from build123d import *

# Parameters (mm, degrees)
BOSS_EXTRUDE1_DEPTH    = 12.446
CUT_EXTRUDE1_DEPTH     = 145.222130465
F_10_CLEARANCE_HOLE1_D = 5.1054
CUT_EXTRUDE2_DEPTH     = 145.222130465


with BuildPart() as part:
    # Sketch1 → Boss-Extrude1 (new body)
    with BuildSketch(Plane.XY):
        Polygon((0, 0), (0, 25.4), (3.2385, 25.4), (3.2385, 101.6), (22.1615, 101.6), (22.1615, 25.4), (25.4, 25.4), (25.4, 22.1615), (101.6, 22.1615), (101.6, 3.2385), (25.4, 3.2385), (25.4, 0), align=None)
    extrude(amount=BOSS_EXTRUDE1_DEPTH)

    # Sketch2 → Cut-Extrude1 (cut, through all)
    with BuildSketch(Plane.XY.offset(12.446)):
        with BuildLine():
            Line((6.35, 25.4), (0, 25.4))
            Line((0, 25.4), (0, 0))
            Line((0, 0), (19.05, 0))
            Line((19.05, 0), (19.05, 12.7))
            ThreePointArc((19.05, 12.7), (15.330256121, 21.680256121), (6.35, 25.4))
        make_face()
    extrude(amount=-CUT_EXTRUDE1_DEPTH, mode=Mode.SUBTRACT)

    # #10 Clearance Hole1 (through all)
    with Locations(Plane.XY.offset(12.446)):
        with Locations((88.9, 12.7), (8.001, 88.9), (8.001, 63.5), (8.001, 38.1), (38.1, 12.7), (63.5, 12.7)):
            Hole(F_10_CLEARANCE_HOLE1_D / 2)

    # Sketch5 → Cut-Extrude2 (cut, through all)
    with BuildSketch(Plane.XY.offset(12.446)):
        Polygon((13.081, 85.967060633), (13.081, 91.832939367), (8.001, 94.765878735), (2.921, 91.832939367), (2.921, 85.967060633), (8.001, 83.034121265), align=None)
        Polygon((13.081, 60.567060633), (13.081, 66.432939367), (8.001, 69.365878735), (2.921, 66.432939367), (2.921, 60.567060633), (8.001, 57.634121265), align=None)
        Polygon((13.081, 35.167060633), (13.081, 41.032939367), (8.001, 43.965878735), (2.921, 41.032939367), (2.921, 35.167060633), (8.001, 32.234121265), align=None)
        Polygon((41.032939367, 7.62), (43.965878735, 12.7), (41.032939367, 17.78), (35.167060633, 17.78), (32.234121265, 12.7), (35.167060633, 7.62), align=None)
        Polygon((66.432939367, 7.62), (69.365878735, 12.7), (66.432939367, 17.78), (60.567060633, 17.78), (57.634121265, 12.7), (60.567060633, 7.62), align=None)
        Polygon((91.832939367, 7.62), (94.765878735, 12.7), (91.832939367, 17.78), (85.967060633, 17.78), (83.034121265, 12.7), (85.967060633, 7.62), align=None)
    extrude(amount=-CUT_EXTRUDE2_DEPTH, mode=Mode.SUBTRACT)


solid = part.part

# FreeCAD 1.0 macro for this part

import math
import FreeCAD as App
import Part
import Sketcher
from FreeCAD import Vector
Q = App.Units.Quantity

doc = App.newDocument("Part")
body = doc.addObject("PartDesign::Body", "Body")

# Sketch on XY plane
sketch1 = body.newObject("Sketcher::SketchObject", "Sketch")
sketch1.AttachmentSupport = (doc.getObject("XY_Plane"), [""])
sketch1.MapMode = "FlatFace"
sketch1.addGeometry([
    Part.LineSegment(Vector(0, 25.4, 0), Vector(0, 0, 0)),  # 0
    Part.LineSegment(Vector(0, 0, 0), Vector(25.4, 0, 0)),  # 1
    Part.LineSegment(Vector(25.4, 0, 0), Vector(25.4, 3.2, 0)),  # 2
    Part.LineSegment(Vector(25.4, 3.2, 0), Vector(101.6, 3.2, 0)),  # 3
    Part.LineSegment(Vector(101.6, 3.2, 0), Vector(101.6, 22.2, 0)),  # 4
    Part.LineSegment(Vector(101.6, 22.2, 0), Vector(25.4, 22.2, 0)),  # 5
    Part.LineSegment(Vector(25.4, 22.2, 0), Vector(25.4, 25.4, 0)),  # 6
    Part.LineSegment(Vector(25.4, 25.4, 0), Vector(22.2, 25.4, 0)),  # 7
    Part.LineSegment(Vector(22.2, 25.4, 0), Vector(22.2, 101.6, 0)),  # 8
    Part.LineSegment(Vector(22.2, 101.6, 0), Vector(3.2, 101.6, 0)),  # 9
    Part.LineSegment(Vector(3.2, 101.6, 0), Vector(3.2, 25.4, 0)),  # 10
    Part.LineSegment(Vector(3.2, 25.4, 0), Vector(0, 25.4, 0)),  # 11
], False)
sketch1.addConstraint([
    Sketcher.Constraint("Coincident", 0, 2, 1, 1),
    Sketcher.Constraint("Coincident", 1, 2, 2, 1),
    Sketcher.Constraint("Coincident", 2, 2, 3, 1),
    Sketcher.Constraint("Coincident", 3, 2, 4, 1),
    Sketcher.Constraint("Coincident", 4, 2, 5, 1),
    Sketcher.Constraint("Coincident", 5, 2, 6, 1),
    Sketcher.Constraint("Coincident", 6, 2, 7, 1),
    Sketcher.Constraint("Coincident", 7, 2, 8, 1),
    Sketcher.Constraint("Coincident", 8, 2, 9, 1),
    Sketcher.Constraint("Coincident", 9, 2, 10, 1),
    Sketcher.Constraint("Coincident", 10, 2, 11, 1),
    Sketcher.Constraint("Coincident", 11, 2, 0, 1),
    Sketcher.Constraint("Vertical", 0),
    Sketcher.Constraint("Horizontal", 1),
    Sketcher.Constraint("Vertical", 2),
    Sketcher.Constraint("Horizontal", 3),
    Sketcher.Constraint("Vertical", 4),
    Sketcher.Constraint("Horizontal", 5),
    Sketcher.Constraint("Vertical", 6),
    Sketcher.Constraint("Horizontal", 7),
    Sketcher.Constraint("Vertical", 8),
    Sketcher.Constraint("Horizontal", 9),
    Sketcher.Constraint("Vertical", 10),
    Sketcher.Constraint("Horizontal", 11),
    Sketcher.Constraint("Coincident", 0, 2, -1, 1),
    Sketcher.Constraint("Horizontal", 7, 2, 10, 2),
    Sketcher.Constraint("Vertical", 2, 2, 5, 2),
    Sketcher.Constraint("Equal", 7, 11),
    Sketcher.Constraint("Equal", 1, 0),
    Sketcher.Constraint("Equal", 11, 2),
    Sketcher.Constraint("Equal", 9, 4),
    Sketcher.Constraint("Equal", 5, 8),
    Sketcher.Constraint("DistanceX", 1, 1, 1, 2, Q("1 in")),
    Sketcher.Constraint("DistanceX", 3, 1, 3, 2, Q("3 in")),
    Sketcher.Constraint("DistanceX", 9, 2, 9, 1, Q("0.745 in")),
])
pad1 = body.newObject("PartDesign::Pad", "Pad")
pad1.Profile = sketch1
pad1.Length = Q("0.49 in")

# Sketch on XY plane
sketch2 = body.newObject("Sketcher::SketchObject", "Sketch001")
sketch2.AttachmentSupport = (doc.getObject("XY_Plane"), [""])
sketch2.MapMode = "FlatFace"
sketch2.AttachmentOffset = App.Placement(Vector(0, 0, 0.49 * 25.4), App.Rotation())
sketch2.addGeometry([
    Part.LineSegment(Vector(6, 25, 0), Vector(0, 25, 0)),  # 0
    Part.LineSegment(Vector(0, 25, 0), Vector(0, 0, 0)),  # 1
    Part.LineSegment(Vector(0, 0, 0), Vector(19, 0, 0)),  # 2
    Part.LineSegment(Vector(19, 0, 0), Vector(19, 13, 0)),  # 3
    Part.ArcOfCircle(Part.Circle(Vector(6, 13, 0), Vector(0, 0, 1), 13), math.radians(0), math.radians(90)),  # 4
], False)
sketch2.addConstraint([
    Sketcher.Constraint("Coincident", 0, 2, 1, 1),
    Sketcher.Constraint("Coincident", 1, 2, 2, 1),
    Sketcher.Constraint("Coincident", 2, 2, 3, 1),
    Sketcher.Constraint("Tangent", 3, 2, 4, 1),
    Sketcher.Constraint("Tangent", 4, 2, 0, 1),
    Sketcher.Constraint("Horizontal", 0),
    Sketcher.Constraint("Vertical", 1),
    Sketcher.Constraint("Horizontal", 2),
    Sketcher.Constraint("Vertical", 3),
    Sketcher.Constraint("Coincident", 1, 2, -1, 1),
    Sketcher.Constraint("Radius", 4, Q("0.5 in")),
    Sketcher.Constraint("DistanceY", 1, 2, 1, 1, Q("1 in")),
    Sketcher.Constraint("DistanceX", 0, 2, 0, 1, Q("0.25 in")),
])
pocket1 = body.newObject("PartDesign::Pocket", "Pocket")
pocket1.Profile = sketch2
pocket1.Type = "ThroughAll"

# Sketch on XY plane
sketch3 = body.newObject("Sketcher::SketchObject", "Sketch002")
sketch3.AttachmentSupport = (doc.getObject("XY_Plane"), [""])
sketch3.MapMode = "FlatFace"
sketch3.AttachmentOffset = App.Placement(Vector(0, 0, 0.49 * 25.4), App.Rotation())
sketch3.addGeometry([
    Part.Circle(Vector(88.9, 12.7, 0), Vector(0, 0, 1), 2.6),  # 0
    Part.Circle(Vector(8, 88.9, 0), Vector(0, 0, 1), 2.6),  # 1
    Part.Circle(Vector(8, 63.5, 0), Vector(0, 0, 1), 2.6),  # 2
    Part.Circle(Vector(8, 38.1, 0), Vector(0, 0, 1), 2.6),  # 3
    Part.Circle(Vector(38.1, 12.7, 0), Vector(0, 0, 1), 2.6),  # 4
    Part.Circle(Vector(63.5, 12.7, 0), Vector(0, 0, 1), 2.6),  # 5
], False)
sketch3.addConstraint([
    Sketcher.Constraint("Equal", 0, 1),
    Sketcher.Constraint("Equal", 1, 2),
    Sketcher.Constraint("Equal", 2, 3),
    Sketcher.Constraint("Equal", 3, 4),
    Sketcher.Constraint("Equal", 4, 5),
    Sketcher.Constraint("Horizontal", 0, 3, 4, 3),
    Sketcher.Constraint("Horizontal", 4, 3, 5, 3),
    Sketcher.Constraint("Vertical", 1, 3, 2, 3),
    Sketcher.Constraint("Vertical", 2, 3, 3, 3),
    Sketcher.Constraint("Diameter", 0, Q("0.201 in")),
    Sketcher.Constraint("DistanceY", 0, 3, 1, 3, Q("3 in")),
    Sketcher.Constraint("DistanceY", 2, 3, 1, 3, Q("1 in")),
    Sketcher.Constraint("DistanceY", 3, 3, 2, 3, Q("1 in")),
    Sketcher.Constraint("DistanceX", 4, 3, 0, 3, Q("2 in")),
    Sketcher.Constraint("DistanceX", 4, 3, 5, 3, Q("1 in")),
    Sketcher.Constraint("DistanceX", -1, 1, 0, 3, Q("3.5 in")),
    Sketcher.Constraint("DistanceY", -1, 1, 0, 3, Q("0.5 in")),
    Sketcher.Constraint("DistanceX", -1, 1, 1, 3, Q("0.315 in")),
])
doc.recompute()
hole = body.newObject("PartDesign::Hole", "Hole")
hole.Profile = sketch3
hole.ThreadType = "None"
hole.Diameter = Q("0.201 in")
hole.DepthType = "ThroughAll"

# Sketch on XY plane
sketch4 = body.newObject("Sketcher::SketchObject", "Sketch003")
sketch4.AttachmentSupport = (doc.getObject("XY_Plane"), [""])
sketch4.MapMode = "FlatFace"
sketch4.AttachmentOffset = App.Placement(Vector(0, 0, 0.49 * 25.4), App.Rotation())
sketch4.addGeometry([
    Part.LineSegment(Vector(13, 86, 0), Vector(13, 92, 0)),  # 0
    Part.LineSegment(Vector(13, 92, 0), Vector(8, 95, 0)),  # 1
    Part.LineSegment(Vector(8, 95, 0), Vector(3, 92, 0)),  # 2
    Part.LineSegment(Vector(3, 92, 0), Vector(3, 86, 0)),  # 3
    Part.LineSegment(Vector(3, 86, 0), Vector(8, 83, 0)),  # 4
    Part.LineSegment(Vector(8, 83, 0), Vector(13, 86, 0)),  # 5
    Part.LineSegment(Vector(13, 61, 0), Vector(13, 66, 0)),  # 6
    Part.LineSegment(Vector(13, 66, 0), Vector(8, 69, 0)),  # 7
    Part.LineSegment(Vector(8, 69, 0), Vector(3, 66, 0)),  # 8
    Part.LineSegment(Vector(3, 66, 0), Vector(3, 61, 0)),  # 9
    Part.LineSegment(Vector(3, 61, 0), Vector(8, 58, 0)),  # 10
    Part.LineSegment(Vector(8, 58, 0), Vector(13, 61, 0)),  # 11
    Part.LineSegment(Vector(13, 35, 0), Vector(13, 41, 0)),  # 12
    Part.LineSegment(Vector(13, 41, 0), Vector(8, 44, 0)),  # 13
    Part.LineSegment(Vector(8, 44, 0), Vector(3, 41, 0)),  # 14
    Part.LineSegment(Vector(3, 41, 0), Vector(3, 35, 0)),  # 15
    Part.LineSegment(Vector(3, 35, 0), Vector(8, 32, 0)),  # 16
    Part.LineSegment(Vector(8, 32, 0), Vector(13, 35, 0)),  # 17
    Part.LineSegment(Vector(41, 8, 0), Vector(44, 13, 0)),  # 18
    Part.LineSegment(Vector(44, 13, 0), Vector(41, 18, 0)),  # 19
    Part.LineSegment(Vector(41, 18, 0), Vector(35, 18, 0)),  # 20
    Part.LineSegment(Vector(35, 18, 0), Vector(32, 13, 0)),  # 21
    Part.LineSegment(Vector(32, 13, 0), Vector(35, 8, 0)),  # 22
    Part.LineSegment(Vector(35, 8, 0), Vector(41, 8, 0)),  # 23
    Part.LineSegment(Vector(66, 8, 0), Vector(69, 13, 0)),  # 24
    Part.LineSegment(Vector(69, 13, 0), Vector(66, 18, 0)),  # 25
    Part.LineSegment(Vector(66, 18, 0), Vector(61, 18, 0)),  # 26
    Part.LineSegment(Vector(61, 18, 0), Vector(58, 13, 0)),  # 27
    Part.LineSegment(Vector(58, 13, 0), Vector(61, 8, 0)),  # 28
    Part.LineSegment(Vector(61, 8, 0), Vector(66, 8, 0)),  # 29
    Part.LineSegment(Vector(92, 8, 0), Vector(95, 13, 0)),  # 30
    Part.LineSegment(Vector(95, 13, 0), Vector(92, 18, 0)),  # 31
    Part.LineSegment(Vector(92, 18, 0), Vector(86, 18, 0)),  # 32
    Part.LineSegment(Vector(86, 18, 0), Vector(83, 13, 0)),  # 33
    Part.LineSegment(Vector(83, 13, 0), Vector(86, 8, 0)),  # 34
    Part.LineSegment(Vector(86, 8, 0), Vector(92, 8, 0)),  # 35
], False)
sketch4.addConstraint([
    Sketcher.Constraint("Coincident", 0, 2, 1, 1),
    Sketcher.Constraint("Coincident", 1, 2, 2, 1),
    Sketcher.Constraint("Coincident", 2, 2, 3, 1),
    Sketcher.Constraint("Coincident", 3, 2, 4, 1),
    Sketcher.Constraint("Coincident", 4, 2, 5, 1),
    Sketcher.Constraint("Coincident", 5, 2, 0, 1),
    Sketcher.Constraint("Coincident", 6, 2, 7, 1),
    Sketcher.Constraint("Coincident", 7, 2, 8, 1),
    Sketcher.Constraint("Coincident", 8, 2, 9, 1),
    Sketcher.Constraint("Coincident", 9, 2, 10, 1),
    Sketcher.Constraint("Coincident", 10, 2, 11, 1),
    Sketcher.Constraint("Coincident", 11, 2, 6, 1),
    Sketcher.Constraint("Coincident", 12, 2, 13, 1),
    Sketcher.Constraint("Coincident", 13, 2, 14, 1),
    Sketcher.Constraint("Coincident", 14, 2, 15, 1),
    Sketcher.Constraint("Coincident", 15, 2, 16, 1),
    Sketcher.Constraint("Coincident", 16, 2, 17, 1),
    Sketcher.Constraint("Coincident", 17, 2, 12, 1),
    Sketcher.Constraint("Coincident", 18, 2, 19, 1),
    Sketcher.Constraint("Coincident", 19, 2, 20, 1),
    Sketcher.Constraint("Coincident", 20, 2, 21, 1),
    Sketcher.Constraint("Coincident", 21, 2, 22, 1),
    Sketcher.Constraint("Coincident", 22, 2, 23, 1),
    Sketcher.Constraint("Coincident", 23, 2, 18, 1),
    Sketcher.Constraint("Coincident", 24, 2, 25, 1),
    Sketcher.Constraint("Coincident", 25, 2, 26, 1),
    Sketcher.Constraint("Coincident", 26, 2, 27, 1),
    Sketcher.Constraint("Coincident", 27, 2, 28, 1),
    Sketcher.Constraint("Coincident", 28, 2, 29, 1),
    Sketcher.Constraint("Coincident", 29, 2, 24, 1),
    Sketcher.Constraint("Coincident", 30, 2, 31, 1),
    Sketcher.Constraint("Coincident", 31, 2, 32, 1),
    Sketcher.Constraint("Coincident", 32, 2, 33, 1),
    Sketcher.Constraint("Coincident", 33, 2, 34, 1),
    Sketcher.Constraint("Coincident", 34, 2, 35, 1),
    Sketcher.Constraint("Coincident", 35, 2, 30, 1),
    Sketcher.Constraint("Vertical", 0),
    Sketcher.Constraint("Vertical", 3),
    Sketcher.Constraint("Vertical", 6),
    Sketcher.Constraint("Vertical", 9),
    Sketcher.Constraint("Vertical", 12),
    Sketcher.Constraint("Vertical", 15),
    Sketcher.Constraint("Horizontal", 20),
    Sketcher.Constraint("Horizontal", 23),
    Sketcher.Constraint("Horizontal", 26),
    Sketcher.Constraint("Horizontal", 29),
    Sketcher.Constraint("Horizontal", 32),
    Sketcher.Constraint("Horizontal", 35),
    Sketcher.Constraint("Parallel", 1, 4),
    Sketcher.Constraint("Parallel", 2, 5),
    Sketcher.Constraint("Parallel", 4, 7),
    Sketcher.Constraint("Parallel", 5, 8),
    Sketcher.Constraint("Parallel", 7, 10),
    Sketcher.Constraint("Parallel", 8, 11),
    Sketcher.Constraint("Parallel", 10, 13),
    Sketcher.Constraint("Parallel", 11, 14),
    Sketcher.Constraint("Parallel", 13, 16),
    Sketcher.Constraint("Parallel", 14, 17),
    Sketcher.Constraint("Perpendicular", 16, 18),
    Sketcher.Constraint("Perpendicular", 17, 19),
    Sketcher.Constraint("Parallel", 18, 21),
    Sketcher.Constraint("Parallel", 19, 22),
    Sketcher.Constraint("Parallel", 21, 24),
    Sketcher.Constraint("Parallel", 22, 25),
    Sketcher.Constraint("Parallel", 24, 27),
    Sketcher.Constraint("Parallel", 25, 28),
    Sketcher.Constraint("Parallel", 27, 30),
    Sketcher.Constraint("Parallel", 28, 31),
    Sketcher.Constraint("Parallel", 30, 33),
    Sketcher.Constraint("Parallel", 31, 34),
    Sketcher.Constraint("Horizontal", 0, 2, 2, 2),
    Sketcher.Constraint("Horizontal", 3, 2, 5, 2),
    Sketcher.Constraint("Horizontal", 6, 2, 8, 2),
    Sketcher.Constraint("Horizontal", 9, 2, 11, 2),
    Sketcher.Constraint("Horizontal", 12, 2, 14, 2),
    Sketcher.Constraint("Horizontal", 15, 2, 17, 2),
    Sketcher.Constraint("Horizontal", 18, 2, 21, 2),
    Sketcher.Constraint("Horizontal", 21, 2, 24, 2),
    Sketcher.Constraint("Horizontal", 20, 2, 25, 2),
    Sketcher.Constraint("Horizontal", 24, 2, 27, 2),
    Sketcher.Constraint("Horizontal", 23, 2, 28, 2),
    Sketcher.Constraint("Horizontal", 27, 2, 30, 2),
    Sketcher.Constraint("Horizontal", 26, 2, 31, 2),
    Sketcher.Constraint("Horizontal", 30, 2, 33, 2),
    Sketcher.Constraint("Horizontal", 29, 2, 34, 2),
    Sketcher.Constraint("Vertical", 1, 2, 4, 2),
    Sketcher.Constraint("Vertical", 5, 2, 6, 2),
    Sketcher.Constraint("Vertical", 4, 2, 7, 2),
    Sketcher.Constraint("Vertical", 11, 2, 12, 2),
    Sketcher.Constraint("Vertical", 10, 2, 13, 2),
    Sketcher.Constraint("Vertical", 20, 2, 22, 2),
    Sketcher.Constraint("Equal", 23, 26),
    Sketcher.Constraint("Equal", 29, 32),
    Sketcher.Constraint("Equal", 35, 0),
    Sketcher.Constraint("Equal", 3, 6),
    Sketcher.Constraint("Equal", 9, 12),
    Sketcher.Constraint("Equal", 17, 18),
    Sketcher.Constraint("Angle", 1, Q("150 deg")),
    Sketcher.Constraint("DistanceY", 6, 2, 0, 2, Q("1 in")),
    Sketcher.Constraint("DistanceY", 12, 2, 6, 2, Q("1 in")),
    Sketcher.Constraint("DistanceX", 18, 2, 24, 2, Q("1 in")),
    Sketcher.Constraint("DistanceX", 24, 2, 30, 2, Q("1 in")),
    Sketcher.Constraint("DistanceY", -1, 1, 18, 2, Q("0.5 in")),
    Sketcher.Constraint("DistanceY", -1, 1, 19, 2, Q("0.7 in")),
    Sketcher.Constraint("DistanceX", -1, 1, 0, 2, Q("0.515 in")),
    Sketcher.Constraint("DistanceX", 20, 2, 20, 1, 5.865879),
    Sketcher.Constraint("DistanceY", -1, 1, 0, 2, 91.832939),
    Sketcher.Constraint("DistanceX", -1, 1, 18, 2, 43.965879),
])
pocket2 = body.newObject("PartDesign::Pocket", "Pocket001")
pocket2.Profile = sketch4
pocket2.Type = "ThroughAll"

doc.recompute()
